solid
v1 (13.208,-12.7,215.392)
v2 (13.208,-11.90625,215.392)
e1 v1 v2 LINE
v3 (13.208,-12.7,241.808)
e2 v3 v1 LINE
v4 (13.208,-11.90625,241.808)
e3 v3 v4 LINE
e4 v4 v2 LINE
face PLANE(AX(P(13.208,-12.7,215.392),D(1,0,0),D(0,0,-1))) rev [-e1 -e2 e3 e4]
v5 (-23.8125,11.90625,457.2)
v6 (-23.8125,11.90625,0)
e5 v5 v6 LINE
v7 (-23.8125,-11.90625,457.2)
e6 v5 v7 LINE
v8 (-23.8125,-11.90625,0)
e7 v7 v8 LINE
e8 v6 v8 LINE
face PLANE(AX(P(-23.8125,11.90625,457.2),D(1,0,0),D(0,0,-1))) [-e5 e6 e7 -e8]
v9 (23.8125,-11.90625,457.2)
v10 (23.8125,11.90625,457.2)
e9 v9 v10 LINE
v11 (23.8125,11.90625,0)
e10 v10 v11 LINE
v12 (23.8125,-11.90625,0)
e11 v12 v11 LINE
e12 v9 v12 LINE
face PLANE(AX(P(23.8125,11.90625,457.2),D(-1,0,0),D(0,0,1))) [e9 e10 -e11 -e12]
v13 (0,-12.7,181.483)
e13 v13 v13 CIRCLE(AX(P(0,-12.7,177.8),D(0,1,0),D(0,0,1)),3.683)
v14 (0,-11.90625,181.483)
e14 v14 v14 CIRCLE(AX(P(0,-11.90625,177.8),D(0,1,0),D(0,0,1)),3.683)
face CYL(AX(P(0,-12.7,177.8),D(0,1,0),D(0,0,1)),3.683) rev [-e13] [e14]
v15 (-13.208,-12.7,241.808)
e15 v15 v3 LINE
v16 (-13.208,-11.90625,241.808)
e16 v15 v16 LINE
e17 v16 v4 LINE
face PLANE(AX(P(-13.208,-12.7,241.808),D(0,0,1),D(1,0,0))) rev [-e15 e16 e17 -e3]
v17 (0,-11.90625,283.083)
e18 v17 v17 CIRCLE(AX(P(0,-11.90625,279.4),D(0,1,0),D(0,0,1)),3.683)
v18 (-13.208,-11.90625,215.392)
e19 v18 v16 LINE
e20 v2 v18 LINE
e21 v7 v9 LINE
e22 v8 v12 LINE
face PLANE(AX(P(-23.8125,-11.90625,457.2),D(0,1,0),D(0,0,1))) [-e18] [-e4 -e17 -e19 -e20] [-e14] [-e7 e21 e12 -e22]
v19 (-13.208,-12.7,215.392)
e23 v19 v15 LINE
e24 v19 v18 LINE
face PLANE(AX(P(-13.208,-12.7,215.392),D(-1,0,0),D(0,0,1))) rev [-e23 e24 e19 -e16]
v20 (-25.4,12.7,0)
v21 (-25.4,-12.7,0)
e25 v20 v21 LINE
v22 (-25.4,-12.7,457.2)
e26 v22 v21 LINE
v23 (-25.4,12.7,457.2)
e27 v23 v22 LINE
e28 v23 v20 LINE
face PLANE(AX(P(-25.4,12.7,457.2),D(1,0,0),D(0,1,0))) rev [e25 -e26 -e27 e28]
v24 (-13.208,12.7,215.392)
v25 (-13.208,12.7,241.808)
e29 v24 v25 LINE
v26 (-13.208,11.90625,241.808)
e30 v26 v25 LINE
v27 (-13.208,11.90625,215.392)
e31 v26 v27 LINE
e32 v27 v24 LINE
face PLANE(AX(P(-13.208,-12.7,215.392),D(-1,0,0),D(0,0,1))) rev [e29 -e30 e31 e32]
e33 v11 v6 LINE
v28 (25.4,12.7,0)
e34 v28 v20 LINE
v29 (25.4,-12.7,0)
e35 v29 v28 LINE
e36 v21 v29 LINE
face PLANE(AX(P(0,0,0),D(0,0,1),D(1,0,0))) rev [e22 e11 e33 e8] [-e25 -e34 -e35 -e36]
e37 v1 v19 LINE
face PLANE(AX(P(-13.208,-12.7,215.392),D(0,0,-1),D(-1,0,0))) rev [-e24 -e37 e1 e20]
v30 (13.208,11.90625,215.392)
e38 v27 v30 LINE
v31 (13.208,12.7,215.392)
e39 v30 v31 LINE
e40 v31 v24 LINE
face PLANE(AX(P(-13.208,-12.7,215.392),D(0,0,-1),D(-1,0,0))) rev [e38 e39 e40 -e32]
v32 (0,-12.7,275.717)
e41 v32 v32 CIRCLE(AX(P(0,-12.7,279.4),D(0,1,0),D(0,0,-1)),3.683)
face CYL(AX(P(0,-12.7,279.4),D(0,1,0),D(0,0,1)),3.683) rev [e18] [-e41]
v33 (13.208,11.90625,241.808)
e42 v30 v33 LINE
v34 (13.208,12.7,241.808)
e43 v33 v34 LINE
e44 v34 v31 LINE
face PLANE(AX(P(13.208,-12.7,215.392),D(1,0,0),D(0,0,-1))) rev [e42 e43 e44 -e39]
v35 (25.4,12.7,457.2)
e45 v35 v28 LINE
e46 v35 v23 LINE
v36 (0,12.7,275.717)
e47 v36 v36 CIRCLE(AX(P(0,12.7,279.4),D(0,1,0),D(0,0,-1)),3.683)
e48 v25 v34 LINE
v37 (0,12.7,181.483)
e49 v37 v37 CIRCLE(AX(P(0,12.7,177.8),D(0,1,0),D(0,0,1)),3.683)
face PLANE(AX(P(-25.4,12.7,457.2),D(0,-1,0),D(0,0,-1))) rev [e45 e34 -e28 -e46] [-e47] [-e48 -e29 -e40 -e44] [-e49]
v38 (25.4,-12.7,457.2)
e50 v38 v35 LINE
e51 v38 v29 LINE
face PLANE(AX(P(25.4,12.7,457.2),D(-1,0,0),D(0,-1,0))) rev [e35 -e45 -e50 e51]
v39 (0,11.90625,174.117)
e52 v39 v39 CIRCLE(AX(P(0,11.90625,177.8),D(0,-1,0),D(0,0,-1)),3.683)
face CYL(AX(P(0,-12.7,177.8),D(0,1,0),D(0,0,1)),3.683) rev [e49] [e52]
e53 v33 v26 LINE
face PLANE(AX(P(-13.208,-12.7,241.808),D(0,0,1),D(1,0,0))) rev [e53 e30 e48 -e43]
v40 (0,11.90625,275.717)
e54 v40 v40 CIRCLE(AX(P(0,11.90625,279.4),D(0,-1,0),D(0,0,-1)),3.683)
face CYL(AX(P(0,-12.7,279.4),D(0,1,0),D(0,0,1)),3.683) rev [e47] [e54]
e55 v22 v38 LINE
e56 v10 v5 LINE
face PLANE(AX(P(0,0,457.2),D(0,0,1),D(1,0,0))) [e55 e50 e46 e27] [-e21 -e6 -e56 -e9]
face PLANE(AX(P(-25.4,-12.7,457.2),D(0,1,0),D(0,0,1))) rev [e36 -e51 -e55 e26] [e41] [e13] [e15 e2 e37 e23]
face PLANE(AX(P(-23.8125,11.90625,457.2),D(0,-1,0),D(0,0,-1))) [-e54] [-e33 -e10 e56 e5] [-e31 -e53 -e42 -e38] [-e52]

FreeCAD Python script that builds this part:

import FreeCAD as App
import Part
import Sketcher

V = App.Vector
Q = App.Units.Quantity

doc = App.newDocument("Part")
body = doc.addObject("PartDesign::Body", "Body")

# Sketch on XY plane
sketch1 = body.newObject("Sketcher::SketchObject", "Sketch")
sketch1.AttachmentSupport = (doc.getObject("XY_Plane"), [""])
sketch1.MapMode = "FlatFace"
sketch1.addGeometry([
    Part.LineSegment(V(-25, 13, 0), V(-25, -13, 0)),  # 0
    Part.LineSegment(V(-25, -13, 0), V(25, -13, 0)),  # 1
    Part.LineSegment(V(25, -13, 0), V(25, 13, 0)),  # 2
    Part.LineSegment(V(25, 13, 0), V(-25, 13, 0)),  # 3
    Part.LineSegment(V(24, -12, 0), V(-24, -12, 0)),  # 4
    Part.LineSegment(V(-24, -12, 0), V(-24, 12, 0)),  # 5
    Part.LineSegment(V(-24, 12, 0), V(24, 12, 0)),  # 6
    Part.LineSegment(V(24, 12, 0), V(24, -12, 0)),  # 7
], False)
sketch1.addConstraint([
    Sketcher.Constraint("Coincident", 0, 2, 1, 1),
    Sketcher.Constraint("Coincident", 1, 2, 2, 1),
    Sketcher.Constraint("Coincident", 2, 2, 3, 1),
    Sketcher.Constraint("Coincident", 3, 2, 0, 1),
    Sketcher.Constraint("Coincident", 4, 2, 5, 1),
    Sketcher.Constraint("Coincident", 5, 2, 6, 1),
    Sketcher.Constraint("Coincident", 6, 2, 7, 1),
    Sketcher.Constraint("Coincident", 7, 2, 4, 1),
    Sketcher.Constraint("Vertical", 0),
    Sketcher.Constraint("Horizontal", 1),
    Sketcher.Constraint("Vertical", 2),
    Sketcher.Constraint("Horizontal", 3),
    Sketcher.Constraint("Horizontal", 4),
    Sketcher.Constraint("Vertical", 5),
    Sketcher.Constraint("Horizontal", 6),
    Sketcher.Constraint("Vertical", 7),
    Sketcher.Constraint("Symmetric", 0, 2, 2, 2, -1, 1),
    Sketcher.Constraint("Symmetric", 4, 2, 6, 2, -1, 1),
    Sketcher.Constraint("DistanceX", 1, 1, 1, 2, Q("2 in")),
    Sketcher.Constraint("DistanceY", 0, 2, 0, 1, Q("1 in")),
    Sketcher.Constraint("DistanceX", 4, 2, 4, 1, Q("1.875 in")),
    Sketcher.Constraint("DistanceY", 5, 1, 5, 2, Q("0.9375 in")),
])
pad1 = body.newObject("PartDesign::Pad", "Pad")
pad1.Profile = sketch1
pad1.Length = Q("18 in")

# Sketch on XZ plane
sketch2 = body.newObject("Sketcher::SketchObject", "Sketch001")
sketch2.AttachmentSupport = (doc.getObject("XZ_Plane"), [""])
sketch2.MapMode = "FlatFace"
sketch2.AttachmentOffset = App.Placement(V(0, 0, -0.5 * 25.4), App.Rotation())
sketch2.addGeometry([
    Part.Circle(V(0, 177.8, 0), V(0, 0, 1), 3.7),  # 0
    Part.Circle(V(0, 279.4, 0), V(0, 0, 1), 3.7),  # 1
    Part.LineSegment(V(-13.2, 215.4, 0), V(-13.2, 241.8, 0)),  # 2
    Part.LineSegment(V(-13.2, 241.8, 0), V(13.2, 241.8, 0)),  # 3
    Part.LineSegment(V(13.2, 241.8, 0), V(13.2, 215.4, 0)),  # 4
    Part.LineSegment(V(13.2, 215.4, 0), V(-13.2, 215.4, 0)),  # 5
], False)
sketch2.addConstraint([
    Sketcher.Constraint("Coincident", 2, 2, 3, 1),
    Sketcher.Constraint("Coincident", 3, 2, 4, 1),
    Sketcher.Constraint("Coincident", 4, 2, 5, 1),
    Sketcher.Constraint("Coincident", 5, 2, 2, 1),
    Sketcher.Constraint("Vertical", 2),
    Sketcher.Constraint("Horizontal", 3),
    Sketcher.Constraint("Vertical", 4),
    Sketcher.Constraint("Horizontal", 5),
    Sketcher.Constraint("Equal", 0, 1),
    Sketcher.Constraint("PointOnObject", 0, 3, -2),
    Sketcher.Constraint("PointOnObject", 1, 3, -2),
    Sketcher.Constraint("Equal", 5, 2),
    Sketcher.Constraint("Diameter", 0, Q("0.29 in")),
    Sketcher.Constraint("DistanceY", -1, 1, 0, 3, Q("7 in")),
    Sketcher.Constraint("DistanceY", -1, 1, 1, 3, Q("11 in")),
    Sketcher.Constraint("DistanceX", 3, 1, 3, 2, Q("1.04 in")),
    Sketcher.Constraint("DistanceX", 2, 2, -1, 1, Q("0.52 in")),
    Sketcher.Constraint("DistanceY", -1, 1, 2, 2, Q("9.52 in")),
])
pocket1 = body.newObject("PartDesign::Pocket", "Pocket")
pocket1.Profile = sketch2
pocket1.Type = "ThroughAll"
pocket1.Reversed = True

doc.recompute()
